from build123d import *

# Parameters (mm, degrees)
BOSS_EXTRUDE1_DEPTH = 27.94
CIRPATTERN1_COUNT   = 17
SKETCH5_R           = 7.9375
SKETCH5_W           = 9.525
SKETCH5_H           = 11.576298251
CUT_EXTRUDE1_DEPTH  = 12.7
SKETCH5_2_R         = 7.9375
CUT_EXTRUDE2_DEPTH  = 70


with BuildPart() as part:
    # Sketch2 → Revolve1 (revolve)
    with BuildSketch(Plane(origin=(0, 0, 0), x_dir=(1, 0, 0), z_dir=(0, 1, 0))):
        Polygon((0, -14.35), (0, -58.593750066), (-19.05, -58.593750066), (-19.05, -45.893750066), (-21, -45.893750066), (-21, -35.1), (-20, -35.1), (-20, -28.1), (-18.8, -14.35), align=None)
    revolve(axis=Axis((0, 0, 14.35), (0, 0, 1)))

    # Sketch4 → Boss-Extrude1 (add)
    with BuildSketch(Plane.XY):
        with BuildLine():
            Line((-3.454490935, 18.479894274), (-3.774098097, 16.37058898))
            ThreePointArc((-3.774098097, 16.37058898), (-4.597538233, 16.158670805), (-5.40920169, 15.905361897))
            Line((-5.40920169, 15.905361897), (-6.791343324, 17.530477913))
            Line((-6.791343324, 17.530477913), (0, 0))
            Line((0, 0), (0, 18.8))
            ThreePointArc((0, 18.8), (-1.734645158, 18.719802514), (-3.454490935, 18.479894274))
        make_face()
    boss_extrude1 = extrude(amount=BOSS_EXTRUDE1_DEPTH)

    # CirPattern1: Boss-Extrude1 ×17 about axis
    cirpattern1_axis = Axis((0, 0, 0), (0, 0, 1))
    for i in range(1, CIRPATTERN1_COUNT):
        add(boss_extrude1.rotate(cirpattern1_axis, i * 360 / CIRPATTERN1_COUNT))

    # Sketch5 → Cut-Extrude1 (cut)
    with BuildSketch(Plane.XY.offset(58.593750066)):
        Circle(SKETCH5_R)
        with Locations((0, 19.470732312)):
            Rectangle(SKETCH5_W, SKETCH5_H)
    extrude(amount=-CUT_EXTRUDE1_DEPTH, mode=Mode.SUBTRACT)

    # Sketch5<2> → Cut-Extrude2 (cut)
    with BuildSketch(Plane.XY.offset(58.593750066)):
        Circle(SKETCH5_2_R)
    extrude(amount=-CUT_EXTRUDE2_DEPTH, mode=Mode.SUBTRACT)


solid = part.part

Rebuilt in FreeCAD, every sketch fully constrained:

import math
import FreeCAD as App
import Part
import Sketcher
from FreeCAD import Vector


def add_polygon(sketch, points):
    """Adds a closed chain of lines whose ends are joined by coincident constraints."""
    first, n = sketch.GeometryCount, len(points)
    for a, b in zip(points, points[1:] + points[:1]):
        sketch.addGeometry(Part.LineSegment(App.Vector(*a, 0), App.Vector(*b, 0)), False)
    for i in range(n):
        sketch.addConstraint(Sketcher.Constraint("Coincident", first + i, 2, first + (i + 1) % n, 1))

doc = App.newDocument("Part")
body = doc.addObject("PartDesign::Body", "Body")

sketch1 = doc.addObject("Sketcher::SketchObject", "Sketch")
body.addObject(sketch1)
sketch1.AttachmentSupport = (doc.XZ_Plane, [""])
sketch1.MapMode = "FlatFace"
add_polygon(sketch1, [(0, 58.6), (0, 14.3), (-18.8, 14.3), (-20, 28.1), (-20, 35.1), (-21, 35.1), (-21, 45.9), (-19.1, 45.9), (-19.1, 58.6)])
sketch1.addConstraint(Sketcher.Constraint("Vertical", 0))
sketch1.addConstraint(Sketcher.Constraint("Horizontal", 1))
sketch1.addConstraint(Sketcher.Constraint("Vertical", 3))
sketch1.addConstraint(Sketcher.Constraint("Horizontal", 4))
sketch1.addConstraint(Sketcher.Constraint("Vertical", 5))
sketch1.addConstraint(Sketcher.Constraint("Horizontal", 6))
sketch1.addConstraint(Sketcher.Constraint("Vertical", 7))
sketch1.addConstraint(Sketcher.Constraint("Horizontal", 8))
sketch1.addConstraint(Sketcher.Constraint("PointOnObject", 0, 2, -2))
sketch1.addConstraint(Sketcher.Constraint("DistanceX", 4, 2, 4, 1, 1.0))
sketch1.addConstraint(Sketcher.Constraint("DistanceY", 3, 1, 3, 2, 7.0))
sketch1.addConstraint(Sketcher.Constraint("DistanceX", 1, 2, 1, 1, 18.8))
sketch1.addConstraint(Sketcher.Constraint("DistanceY", 7, 1, 7, 2, 12.7))
sketch1.addConstraint(Sketcher.Constraint("DistanceX", 2, 2, -1, 1, 20.0))
sketch1.addConstraint(Sketcher.Constraint("DistanceX", 6, 1, 6, 2, 1.95))
sketch1.addConstraint(Sketcher.Constraint("DistanceY", -1, 1, 2, 2, 28.1))
sketch1.addConstraint(Sketcher.Constraint("DistanceY", -1, 1, 0, 2, 14.35))
sketch1.addConstraint(Sketcher.Constraint("DistanceY", 0, 2, 0, 1, 44.24375))
revolution = doc.addObject("PartDesign::Revolution", "Revolution")
body.addObject(revolution)
revolution.Profile = sketch1
revolution.ReferenceAxis = (sketch1, ["V_Axis"])
revolution.Angle = 360

sketch2 = doc.addObject("Sketcher::SketchObject", "Sketch001")
body.addObject(sketch2)
sketch2.AttachmentSupport = (doc.XY_Plane, [""])
sketch2.MapMode = "FlatFace"
sketch2.addGeometry(Part.LineSegment(Vector(-3.5, 18.5, 0), Vector(-3.8, 16.4, 0)), False)
sketch2.addGeometry(Part.ArcOfCircle(Part.Circle(Vector(0, 0, 0), Vector(0, 0, 1), 16.8), math.radians(102.98), math.radians(108.78)), False)
sketch2.addGeometry(Part.LineSegment(Vector(-5.4, 15.9, 0), Vector(-6.8, 17.5, 0)), False)
sketch2.addGeometry(Part.LineSegment(Vector(-6.8, 17.5, 0), Vector(0, 0, 0)), False)
sketch2.addGeometry(Part.LineSegment(Vector(0, 0, 0), Vector(0, 18.8, 0)), False)
sketch2.addGeometry(Part.ArcOfCircle(Part.Circle(Vector(0, 0, 0), Vector(0, 0, 1), 18.8), math.radians(90), math.radians(100.59)), False)
sketch2.addConstraint(Sketcher.Constraint("Coincident", 0, 2, 1, 1))
sketch2.addConstraint(Sketcher.Constraint("Coincident", 1, 2, 2, 1))
sketch2.addConstraint(Sketcher.Constraint("Coincident", 2, 2, 3, 1))
sketch2.addConstraint(Sketcher.Constraint("Coincident", 3, 2, 4, 1))
sketch2.addConstraint(Sketcher.Constraint("Coincident", 4, 2, 5, 1))
sketch2.addConstraint(Sketcher.Constraint("Coincident", 5, 2, 0, 1))
sketch2.addConstraint(Sketcher.Constraint("Vertical", 4))
sketch2.addConstraint(Sketcher.Constraint("Coincident", 1, 3, -1, 1))
sketch2.addConstraint(Sketcher.Constraint("Coincident", 5, 3, -1, 1))
sketch2.addConstraint(Sketcher.Constraint("Coincident", 3, 2, -1, 1))
sketch2.addConstraint(Sketcher.Constraint("Equal", 0, 2))
sketch2.addConstraint(Sketcher.Constraint("Radius", 1, 16.8))
sketch2.addConstraint(Sketcher.Constraint("Radius", 5, 18.8))
sketch2.addConstraint(Sketcher.Constraint("Distance", 3, 18.8))
sketch2.addConstraint(Sketcher.Constraint("DistanceX", 0, 2, -1, 1, 3.774098))
sketch2.addConstraint(Sketcher.Constraint("DistanceX", 1, 2, -1, 1, 5.409202))
sketch2.addConstraint(Sketcher.Constraint("Distance", 0, 2.133382))
pad1 = doc.addObject("PartDesign::Pad", "Pad")
body.addObject(pad1)
pad1.Profile = sketch2
pad1.Length = 27.94
doc.recompute()

polarpattern = doc.addObject("PartDesign::PolarPattern", "PolarPattern")
body.addObject(polarpattern)
polarpattern.Originals = [pad1]
polarpattern.Axis = (doc.Z_Axis, [""])
polarpattern.Angle = 360
polarpattern.Occurrences = 17
body.Tip = polarpattern

sketch3 = doc.addObject("Sketcher::SketchObject", "Sketch002")
body.addObject(sketch3)
sketch3.AttachmentSupport = (doc.XY_Plane, [""])
sketch3.MapMode = "FlatFace"
sketch3.AttachmentOffset = App.Placement(Vector(0, 0, 58.59375), App.Rotation())
sketch3.addGeometry(Part.Circle(Vector(0, 0, 0), Vector(0, 0, 1), 8), False)
add_polygon(sketch3, [(-5, 25), (-5, 14), (5, 14), (5, 25)])
sketch3.addConstraint(Sketcher.Constraint("Vertical", 1))
sketch3.addConstraint(Sketcher.Constraint("Horizontal", 2))
sketch3.addConstraint(Sketcher.Constraint("Vertical", 3))
sketch3.addConstraint(Sketcher.Constraint("Horizontal", 4))
sketch3.addConstraint(Sketcher.Constraint("Coincident", 0, 3, -1, 1))
sketch3.addConstraint(Sketcher.Constraint("Diameter", 0, 15.875))
sketch3.addConstraint(Sketcher.Constraint("DistanceX", 2, 1, 2, 2, 9.525))
sketch3.addConstraint(Sketcher.Constraint("DistanceY", 1, 2, 1, 1, 11.576298))
sketch3.addConstraint(Sketcher.Constraint("DistanceX", 1, 2, -1, 1, 4.7625))
sketch3.addConstraint(Sketcher.Constraint("DistanceY", -1, 1, 3, 2, 25.258881))
pocket1 = doc.addObject("PartDesign::Pocket", "Pocket")
body.addObject(pocket1)
pocket1.Profile = sketch3
pocket1.Length = 12.7

sketch4 = doc.addObject("Sketcher::SketchObject", "Sketch003")
body.addObject(sketch4)
sketch4.AttachmentSupport = (doc.XY_Plane, [""])
sketch4.MapMode = "FlatFace"
sketch4.AttachmentOffset = App.Placement(Vector(0, 0, 58.59375), App.Rotation())
sketch4.addGeometry(Part.Circle(Vector(0, 0, 0), Vector(0, 0, 1), 8), False)
sketch4.addConstraint(Sketcher.Constraint("Coincident", 0, 3, -1, 1))
sketch4.addConstraint(Sketcher.Constraint("Diameter", 0, 15.875))
pocket2 = doc.addObject("PartDesign::Pocket", "Pocket001")
body.addObject(pocket2)
pocket2.Profile = sketch4
pocket2.Length = 70

doc.recompute()
